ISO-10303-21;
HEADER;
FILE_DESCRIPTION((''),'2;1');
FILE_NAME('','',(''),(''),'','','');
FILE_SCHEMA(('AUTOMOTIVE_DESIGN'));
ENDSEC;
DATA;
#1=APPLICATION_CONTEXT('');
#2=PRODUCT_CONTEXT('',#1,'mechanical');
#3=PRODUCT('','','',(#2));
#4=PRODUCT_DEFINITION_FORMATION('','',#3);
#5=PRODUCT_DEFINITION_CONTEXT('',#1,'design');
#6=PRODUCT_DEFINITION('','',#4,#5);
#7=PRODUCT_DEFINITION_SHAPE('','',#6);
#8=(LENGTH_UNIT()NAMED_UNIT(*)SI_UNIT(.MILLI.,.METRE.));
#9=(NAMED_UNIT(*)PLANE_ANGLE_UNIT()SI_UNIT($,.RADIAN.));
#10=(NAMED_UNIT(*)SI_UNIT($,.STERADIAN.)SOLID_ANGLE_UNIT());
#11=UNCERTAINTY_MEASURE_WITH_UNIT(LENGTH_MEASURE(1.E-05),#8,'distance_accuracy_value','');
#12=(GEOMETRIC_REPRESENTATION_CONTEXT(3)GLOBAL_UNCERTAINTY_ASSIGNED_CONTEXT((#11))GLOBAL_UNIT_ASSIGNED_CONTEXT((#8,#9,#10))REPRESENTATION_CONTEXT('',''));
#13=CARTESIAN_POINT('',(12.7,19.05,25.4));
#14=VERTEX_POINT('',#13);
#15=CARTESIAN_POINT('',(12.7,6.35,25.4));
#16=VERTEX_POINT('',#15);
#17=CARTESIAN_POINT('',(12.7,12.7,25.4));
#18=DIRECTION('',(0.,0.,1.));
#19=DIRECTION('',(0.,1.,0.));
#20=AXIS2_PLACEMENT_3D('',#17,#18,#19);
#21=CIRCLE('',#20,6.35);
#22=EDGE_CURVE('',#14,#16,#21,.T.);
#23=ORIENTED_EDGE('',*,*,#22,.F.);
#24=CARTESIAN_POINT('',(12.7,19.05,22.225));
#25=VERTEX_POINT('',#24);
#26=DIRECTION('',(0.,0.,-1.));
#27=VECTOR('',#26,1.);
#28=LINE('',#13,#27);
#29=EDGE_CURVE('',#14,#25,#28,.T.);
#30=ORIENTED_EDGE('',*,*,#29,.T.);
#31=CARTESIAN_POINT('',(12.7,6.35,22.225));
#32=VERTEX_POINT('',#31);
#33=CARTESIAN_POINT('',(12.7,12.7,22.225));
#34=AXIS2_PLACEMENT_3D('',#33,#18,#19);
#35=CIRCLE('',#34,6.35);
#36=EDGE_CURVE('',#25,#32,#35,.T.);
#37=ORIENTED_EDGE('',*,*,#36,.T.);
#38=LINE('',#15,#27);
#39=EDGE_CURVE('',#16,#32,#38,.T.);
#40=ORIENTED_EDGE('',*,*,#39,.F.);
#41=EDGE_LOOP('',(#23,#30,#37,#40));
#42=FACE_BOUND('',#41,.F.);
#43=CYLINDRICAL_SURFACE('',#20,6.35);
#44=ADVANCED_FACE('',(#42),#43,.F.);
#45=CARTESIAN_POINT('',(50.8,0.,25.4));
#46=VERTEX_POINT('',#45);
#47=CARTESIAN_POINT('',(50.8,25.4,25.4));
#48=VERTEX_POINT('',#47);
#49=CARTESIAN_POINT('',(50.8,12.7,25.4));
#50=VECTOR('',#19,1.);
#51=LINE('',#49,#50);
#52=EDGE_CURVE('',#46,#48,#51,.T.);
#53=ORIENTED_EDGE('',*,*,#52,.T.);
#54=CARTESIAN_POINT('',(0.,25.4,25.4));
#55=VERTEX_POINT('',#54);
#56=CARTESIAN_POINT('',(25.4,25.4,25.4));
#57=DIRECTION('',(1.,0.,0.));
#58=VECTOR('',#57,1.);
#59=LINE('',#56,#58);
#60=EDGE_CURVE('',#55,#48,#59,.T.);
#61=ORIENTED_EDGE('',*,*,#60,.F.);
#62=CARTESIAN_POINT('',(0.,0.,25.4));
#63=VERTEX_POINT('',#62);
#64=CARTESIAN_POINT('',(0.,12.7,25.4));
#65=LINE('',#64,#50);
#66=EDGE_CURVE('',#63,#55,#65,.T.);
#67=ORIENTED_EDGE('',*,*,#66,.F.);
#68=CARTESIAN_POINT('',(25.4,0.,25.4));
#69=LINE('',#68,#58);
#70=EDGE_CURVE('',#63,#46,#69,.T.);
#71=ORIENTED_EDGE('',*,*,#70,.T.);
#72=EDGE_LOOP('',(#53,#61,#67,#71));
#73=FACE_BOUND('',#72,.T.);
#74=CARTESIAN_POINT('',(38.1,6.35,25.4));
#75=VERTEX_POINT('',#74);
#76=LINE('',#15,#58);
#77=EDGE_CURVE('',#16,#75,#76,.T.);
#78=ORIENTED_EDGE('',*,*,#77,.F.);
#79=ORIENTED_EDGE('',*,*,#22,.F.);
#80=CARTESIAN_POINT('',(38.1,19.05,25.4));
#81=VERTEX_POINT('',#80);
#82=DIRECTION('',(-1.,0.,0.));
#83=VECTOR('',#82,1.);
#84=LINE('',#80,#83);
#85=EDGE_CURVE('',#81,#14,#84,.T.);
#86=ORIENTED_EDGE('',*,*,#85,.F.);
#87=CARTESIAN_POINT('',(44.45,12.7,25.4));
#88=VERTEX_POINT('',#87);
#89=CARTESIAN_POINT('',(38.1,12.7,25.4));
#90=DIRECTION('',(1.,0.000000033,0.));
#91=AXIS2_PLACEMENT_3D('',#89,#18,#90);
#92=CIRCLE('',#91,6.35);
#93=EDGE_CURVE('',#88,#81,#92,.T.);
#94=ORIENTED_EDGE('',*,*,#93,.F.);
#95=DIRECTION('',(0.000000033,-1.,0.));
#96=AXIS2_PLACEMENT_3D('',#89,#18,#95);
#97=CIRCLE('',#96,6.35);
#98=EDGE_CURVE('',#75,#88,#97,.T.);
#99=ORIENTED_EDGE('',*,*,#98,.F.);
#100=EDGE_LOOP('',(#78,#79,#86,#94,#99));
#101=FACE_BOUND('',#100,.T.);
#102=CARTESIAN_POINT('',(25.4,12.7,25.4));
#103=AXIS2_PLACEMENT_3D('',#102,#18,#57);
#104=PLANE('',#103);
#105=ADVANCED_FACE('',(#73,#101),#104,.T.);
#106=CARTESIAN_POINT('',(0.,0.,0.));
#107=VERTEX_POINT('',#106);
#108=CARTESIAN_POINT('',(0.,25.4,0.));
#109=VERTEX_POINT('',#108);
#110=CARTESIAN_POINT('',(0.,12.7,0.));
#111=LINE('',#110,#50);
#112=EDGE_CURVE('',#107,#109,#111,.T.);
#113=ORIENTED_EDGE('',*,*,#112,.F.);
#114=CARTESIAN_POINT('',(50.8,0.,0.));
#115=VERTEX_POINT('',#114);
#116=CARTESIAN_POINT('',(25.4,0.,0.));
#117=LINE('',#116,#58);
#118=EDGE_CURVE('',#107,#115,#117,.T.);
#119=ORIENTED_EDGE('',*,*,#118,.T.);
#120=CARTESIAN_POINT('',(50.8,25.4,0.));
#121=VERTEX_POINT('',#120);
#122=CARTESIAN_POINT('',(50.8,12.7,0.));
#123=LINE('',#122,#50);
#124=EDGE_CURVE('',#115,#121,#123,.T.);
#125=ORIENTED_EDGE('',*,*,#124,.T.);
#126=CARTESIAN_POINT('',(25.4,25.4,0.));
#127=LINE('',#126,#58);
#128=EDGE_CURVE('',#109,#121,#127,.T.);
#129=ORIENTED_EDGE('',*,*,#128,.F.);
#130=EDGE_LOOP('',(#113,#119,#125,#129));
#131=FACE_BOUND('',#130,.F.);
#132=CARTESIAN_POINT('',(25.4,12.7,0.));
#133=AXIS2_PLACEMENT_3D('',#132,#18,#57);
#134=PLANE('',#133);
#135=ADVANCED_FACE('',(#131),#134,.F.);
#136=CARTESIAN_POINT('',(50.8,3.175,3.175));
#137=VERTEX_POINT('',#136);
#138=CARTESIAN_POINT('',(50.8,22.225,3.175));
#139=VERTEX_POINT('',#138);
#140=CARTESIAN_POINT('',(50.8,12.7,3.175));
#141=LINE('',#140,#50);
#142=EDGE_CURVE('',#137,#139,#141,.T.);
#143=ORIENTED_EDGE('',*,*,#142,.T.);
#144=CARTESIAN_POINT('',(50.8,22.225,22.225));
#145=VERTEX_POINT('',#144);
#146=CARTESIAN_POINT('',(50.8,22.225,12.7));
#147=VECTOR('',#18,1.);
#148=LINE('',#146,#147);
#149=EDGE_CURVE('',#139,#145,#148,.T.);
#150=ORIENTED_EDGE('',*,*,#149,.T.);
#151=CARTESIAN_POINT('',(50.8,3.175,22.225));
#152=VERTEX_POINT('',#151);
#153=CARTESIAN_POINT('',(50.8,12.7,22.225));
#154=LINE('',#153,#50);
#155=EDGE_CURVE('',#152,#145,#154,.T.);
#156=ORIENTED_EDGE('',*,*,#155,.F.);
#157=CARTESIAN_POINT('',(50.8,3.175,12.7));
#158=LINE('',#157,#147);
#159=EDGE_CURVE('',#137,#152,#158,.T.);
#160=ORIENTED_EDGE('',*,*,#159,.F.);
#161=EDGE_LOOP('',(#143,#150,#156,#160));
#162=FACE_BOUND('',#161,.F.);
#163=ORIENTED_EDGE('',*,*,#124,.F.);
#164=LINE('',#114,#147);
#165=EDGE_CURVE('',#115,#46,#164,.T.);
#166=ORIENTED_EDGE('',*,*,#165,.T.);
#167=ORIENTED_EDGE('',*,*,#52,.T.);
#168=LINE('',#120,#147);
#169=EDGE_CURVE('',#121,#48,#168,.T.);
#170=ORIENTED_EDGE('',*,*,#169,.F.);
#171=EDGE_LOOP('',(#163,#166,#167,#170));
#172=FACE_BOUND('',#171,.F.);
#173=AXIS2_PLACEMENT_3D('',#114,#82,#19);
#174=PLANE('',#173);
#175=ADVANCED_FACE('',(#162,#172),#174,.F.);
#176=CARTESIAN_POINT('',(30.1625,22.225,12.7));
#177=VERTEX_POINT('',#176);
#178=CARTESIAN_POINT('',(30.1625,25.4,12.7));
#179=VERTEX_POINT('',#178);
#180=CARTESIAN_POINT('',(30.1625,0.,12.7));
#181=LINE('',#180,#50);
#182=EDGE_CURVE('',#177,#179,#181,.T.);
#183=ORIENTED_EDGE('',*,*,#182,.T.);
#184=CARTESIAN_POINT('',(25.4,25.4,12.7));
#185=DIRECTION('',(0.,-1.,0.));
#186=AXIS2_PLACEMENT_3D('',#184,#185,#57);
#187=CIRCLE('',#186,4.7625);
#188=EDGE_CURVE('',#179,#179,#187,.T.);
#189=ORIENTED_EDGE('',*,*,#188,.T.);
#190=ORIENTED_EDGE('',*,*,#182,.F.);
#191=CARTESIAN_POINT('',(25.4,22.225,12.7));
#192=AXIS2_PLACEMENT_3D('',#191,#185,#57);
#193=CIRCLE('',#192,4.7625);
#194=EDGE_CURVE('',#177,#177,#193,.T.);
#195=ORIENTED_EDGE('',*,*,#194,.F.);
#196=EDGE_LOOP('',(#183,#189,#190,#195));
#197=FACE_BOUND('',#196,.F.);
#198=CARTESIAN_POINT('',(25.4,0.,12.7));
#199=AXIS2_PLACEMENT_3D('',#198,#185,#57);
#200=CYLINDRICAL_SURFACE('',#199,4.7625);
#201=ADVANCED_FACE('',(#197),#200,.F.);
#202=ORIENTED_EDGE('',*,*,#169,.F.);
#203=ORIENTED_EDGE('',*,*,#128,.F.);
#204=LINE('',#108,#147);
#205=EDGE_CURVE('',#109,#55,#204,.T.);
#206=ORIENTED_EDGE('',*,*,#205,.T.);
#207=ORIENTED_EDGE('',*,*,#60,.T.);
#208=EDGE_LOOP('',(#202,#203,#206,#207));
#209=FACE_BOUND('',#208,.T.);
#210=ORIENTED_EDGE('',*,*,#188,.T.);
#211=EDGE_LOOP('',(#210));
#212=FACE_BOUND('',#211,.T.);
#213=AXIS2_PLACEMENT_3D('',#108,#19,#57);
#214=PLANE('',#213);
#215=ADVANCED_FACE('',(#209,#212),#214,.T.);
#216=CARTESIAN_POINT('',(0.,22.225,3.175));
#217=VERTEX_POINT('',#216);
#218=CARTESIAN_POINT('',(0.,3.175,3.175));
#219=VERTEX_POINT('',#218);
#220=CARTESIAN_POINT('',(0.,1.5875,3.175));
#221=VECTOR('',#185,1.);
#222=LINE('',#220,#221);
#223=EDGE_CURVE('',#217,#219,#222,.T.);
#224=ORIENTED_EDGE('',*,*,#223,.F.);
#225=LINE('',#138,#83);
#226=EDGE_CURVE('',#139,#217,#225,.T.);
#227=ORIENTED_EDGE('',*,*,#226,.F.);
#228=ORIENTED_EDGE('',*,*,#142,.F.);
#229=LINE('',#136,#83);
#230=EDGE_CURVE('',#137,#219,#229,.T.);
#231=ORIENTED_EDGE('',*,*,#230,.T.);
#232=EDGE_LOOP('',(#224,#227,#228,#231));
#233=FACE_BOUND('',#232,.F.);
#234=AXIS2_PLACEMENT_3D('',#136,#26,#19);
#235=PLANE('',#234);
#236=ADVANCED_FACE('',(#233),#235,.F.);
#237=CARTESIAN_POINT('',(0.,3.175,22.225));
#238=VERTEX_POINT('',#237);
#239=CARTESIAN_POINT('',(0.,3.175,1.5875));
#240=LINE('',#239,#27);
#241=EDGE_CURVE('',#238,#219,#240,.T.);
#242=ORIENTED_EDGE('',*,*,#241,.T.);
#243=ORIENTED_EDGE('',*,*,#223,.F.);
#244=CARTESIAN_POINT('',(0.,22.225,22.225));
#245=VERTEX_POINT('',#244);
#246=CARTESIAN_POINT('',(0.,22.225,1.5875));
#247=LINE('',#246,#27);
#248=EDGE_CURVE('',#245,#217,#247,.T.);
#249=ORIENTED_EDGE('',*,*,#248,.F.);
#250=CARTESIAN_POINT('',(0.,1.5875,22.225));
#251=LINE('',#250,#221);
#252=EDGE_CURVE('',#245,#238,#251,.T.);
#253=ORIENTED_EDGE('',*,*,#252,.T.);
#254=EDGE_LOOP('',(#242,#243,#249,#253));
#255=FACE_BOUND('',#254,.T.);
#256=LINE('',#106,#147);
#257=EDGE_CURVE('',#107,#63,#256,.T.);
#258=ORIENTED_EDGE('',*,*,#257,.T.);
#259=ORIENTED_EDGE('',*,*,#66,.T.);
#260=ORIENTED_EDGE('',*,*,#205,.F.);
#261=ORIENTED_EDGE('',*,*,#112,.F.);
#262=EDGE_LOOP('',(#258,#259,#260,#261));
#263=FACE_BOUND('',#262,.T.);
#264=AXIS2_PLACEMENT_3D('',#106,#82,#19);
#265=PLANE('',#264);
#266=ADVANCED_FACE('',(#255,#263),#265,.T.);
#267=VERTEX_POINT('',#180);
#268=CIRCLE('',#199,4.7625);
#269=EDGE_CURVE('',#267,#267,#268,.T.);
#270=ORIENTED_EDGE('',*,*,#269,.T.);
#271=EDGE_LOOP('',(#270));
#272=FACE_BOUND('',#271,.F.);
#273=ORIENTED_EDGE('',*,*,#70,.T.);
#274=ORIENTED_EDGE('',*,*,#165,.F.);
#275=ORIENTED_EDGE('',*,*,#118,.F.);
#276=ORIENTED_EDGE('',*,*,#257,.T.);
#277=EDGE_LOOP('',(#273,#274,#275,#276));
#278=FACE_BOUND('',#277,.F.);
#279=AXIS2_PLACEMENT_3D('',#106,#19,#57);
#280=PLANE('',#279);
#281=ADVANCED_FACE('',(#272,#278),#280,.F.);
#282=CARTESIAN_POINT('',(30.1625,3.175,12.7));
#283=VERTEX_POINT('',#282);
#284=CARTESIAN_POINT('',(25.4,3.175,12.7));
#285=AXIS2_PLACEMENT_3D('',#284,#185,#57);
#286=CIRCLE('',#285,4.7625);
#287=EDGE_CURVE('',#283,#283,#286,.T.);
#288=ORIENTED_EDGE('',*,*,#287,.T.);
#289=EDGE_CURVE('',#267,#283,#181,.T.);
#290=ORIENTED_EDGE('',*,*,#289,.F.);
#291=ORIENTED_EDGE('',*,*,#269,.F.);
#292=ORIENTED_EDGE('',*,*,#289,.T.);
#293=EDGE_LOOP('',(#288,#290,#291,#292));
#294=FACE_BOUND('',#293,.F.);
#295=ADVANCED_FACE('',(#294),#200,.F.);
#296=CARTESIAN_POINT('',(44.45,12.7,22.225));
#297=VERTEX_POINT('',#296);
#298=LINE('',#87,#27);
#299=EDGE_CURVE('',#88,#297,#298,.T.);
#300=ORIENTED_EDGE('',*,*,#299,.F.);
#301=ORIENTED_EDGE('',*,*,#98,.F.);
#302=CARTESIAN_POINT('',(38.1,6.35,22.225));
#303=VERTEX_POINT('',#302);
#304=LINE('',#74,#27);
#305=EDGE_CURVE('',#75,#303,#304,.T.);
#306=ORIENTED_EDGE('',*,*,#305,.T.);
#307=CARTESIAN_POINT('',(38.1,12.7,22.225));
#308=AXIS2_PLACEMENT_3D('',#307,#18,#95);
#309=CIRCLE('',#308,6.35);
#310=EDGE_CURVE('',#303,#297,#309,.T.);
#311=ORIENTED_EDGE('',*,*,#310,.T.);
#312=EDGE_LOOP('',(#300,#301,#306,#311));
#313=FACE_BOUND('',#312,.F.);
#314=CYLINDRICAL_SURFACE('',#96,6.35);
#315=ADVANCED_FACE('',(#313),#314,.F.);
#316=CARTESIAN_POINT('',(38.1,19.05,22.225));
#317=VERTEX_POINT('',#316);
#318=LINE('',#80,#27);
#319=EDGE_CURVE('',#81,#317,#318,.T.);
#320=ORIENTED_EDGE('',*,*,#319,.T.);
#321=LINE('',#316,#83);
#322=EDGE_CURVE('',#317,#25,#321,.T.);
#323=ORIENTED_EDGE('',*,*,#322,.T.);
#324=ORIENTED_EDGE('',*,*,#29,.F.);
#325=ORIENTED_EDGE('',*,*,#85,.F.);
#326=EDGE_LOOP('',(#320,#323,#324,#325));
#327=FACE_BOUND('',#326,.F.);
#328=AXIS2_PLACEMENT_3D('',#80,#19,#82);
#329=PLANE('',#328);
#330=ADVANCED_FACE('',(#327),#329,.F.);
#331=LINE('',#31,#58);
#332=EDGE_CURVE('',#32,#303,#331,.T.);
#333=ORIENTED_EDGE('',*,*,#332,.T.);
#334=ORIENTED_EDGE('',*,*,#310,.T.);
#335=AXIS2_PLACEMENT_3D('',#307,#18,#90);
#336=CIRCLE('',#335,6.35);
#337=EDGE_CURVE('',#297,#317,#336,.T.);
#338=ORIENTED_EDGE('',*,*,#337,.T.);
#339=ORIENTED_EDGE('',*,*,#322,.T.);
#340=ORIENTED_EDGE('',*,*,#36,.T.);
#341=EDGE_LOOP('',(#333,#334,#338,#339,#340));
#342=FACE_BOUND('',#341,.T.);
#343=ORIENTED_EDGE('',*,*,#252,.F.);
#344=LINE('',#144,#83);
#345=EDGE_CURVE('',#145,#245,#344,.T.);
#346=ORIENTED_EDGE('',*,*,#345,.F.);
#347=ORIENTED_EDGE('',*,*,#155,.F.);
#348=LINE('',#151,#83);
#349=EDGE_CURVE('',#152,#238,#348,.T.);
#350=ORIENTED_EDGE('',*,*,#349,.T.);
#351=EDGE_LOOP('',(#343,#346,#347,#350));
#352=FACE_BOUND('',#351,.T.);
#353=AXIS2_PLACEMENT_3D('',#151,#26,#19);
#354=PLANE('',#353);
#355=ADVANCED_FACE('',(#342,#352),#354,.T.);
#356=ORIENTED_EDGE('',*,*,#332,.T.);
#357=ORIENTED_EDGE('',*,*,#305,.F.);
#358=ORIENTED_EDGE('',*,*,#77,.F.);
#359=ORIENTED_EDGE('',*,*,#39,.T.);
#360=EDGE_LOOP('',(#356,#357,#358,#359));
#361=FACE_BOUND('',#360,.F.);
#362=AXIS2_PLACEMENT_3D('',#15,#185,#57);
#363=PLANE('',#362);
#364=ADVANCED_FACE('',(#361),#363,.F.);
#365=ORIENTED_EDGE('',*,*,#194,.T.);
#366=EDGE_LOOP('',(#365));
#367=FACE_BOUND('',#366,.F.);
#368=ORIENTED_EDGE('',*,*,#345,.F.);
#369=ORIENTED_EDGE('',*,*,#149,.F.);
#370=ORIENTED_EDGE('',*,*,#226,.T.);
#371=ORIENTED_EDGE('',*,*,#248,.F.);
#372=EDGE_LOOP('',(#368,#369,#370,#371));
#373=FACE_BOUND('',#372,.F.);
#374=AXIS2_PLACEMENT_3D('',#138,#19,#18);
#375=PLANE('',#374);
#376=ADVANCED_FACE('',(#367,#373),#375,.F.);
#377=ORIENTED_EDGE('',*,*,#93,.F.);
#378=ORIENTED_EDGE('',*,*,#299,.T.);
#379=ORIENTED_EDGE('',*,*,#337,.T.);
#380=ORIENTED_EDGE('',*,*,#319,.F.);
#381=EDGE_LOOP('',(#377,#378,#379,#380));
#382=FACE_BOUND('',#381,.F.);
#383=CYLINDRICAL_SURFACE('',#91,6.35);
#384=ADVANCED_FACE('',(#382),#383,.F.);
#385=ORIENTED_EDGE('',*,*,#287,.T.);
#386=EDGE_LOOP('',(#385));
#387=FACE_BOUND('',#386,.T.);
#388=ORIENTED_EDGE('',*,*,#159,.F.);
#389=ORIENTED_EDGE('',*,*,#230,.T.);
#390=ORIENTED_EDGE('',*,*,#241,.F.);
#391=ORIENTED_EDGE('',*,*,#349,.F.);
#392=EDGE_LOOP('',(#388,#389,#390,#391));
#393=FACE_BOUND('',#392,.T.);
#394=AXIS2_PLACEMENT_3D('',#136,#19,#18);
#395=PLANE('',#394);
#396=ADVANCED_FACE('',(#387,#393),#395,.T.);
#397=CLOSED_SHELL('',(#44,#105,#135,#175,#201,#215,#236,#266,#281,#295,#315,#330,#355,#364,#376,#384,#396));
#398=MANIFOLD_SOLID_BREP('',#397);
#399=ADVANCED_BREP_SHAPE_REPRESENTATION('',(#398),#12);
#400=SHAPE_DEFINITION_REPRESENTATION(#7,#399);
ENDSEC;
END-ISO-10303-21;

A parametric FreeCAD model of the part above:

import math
import FreeCAD as App
import Part
import Sketcher
from FreeCAD import Vector
Q = App.Units.Quantity

doc = App.newDocument("Part")
params = doc.addObject("Spreadsheet::Sheet", "Params")
for row, (alias, value) in enumerate([
    ("sketch1_width", "2 in"),
    ("sketch1_height", "1 in"),
    ("pad1_length", "1 in"),
    ("sketch2_width", "0.75 in"),
    ("sketch3_diameter", "0.375 in"),
    ("sketch4_width", "1 in"),
    ("sketch4_radius", "0.25 in"),
    ("pocket3_length", "0.125 in"),
], start=1):
    params.set(f"A{row}", alias)
    params.set(f"B{row}", "=" + value)
    params.setAlias(f"B{row}", alias)

body = doc.addObject("PartDesign::Body", "Body")

sketch1 = body.newObject("Sketcher::SketchObject", "Sketch")
sketch1.AttachmentSupport = (doc.getObject("XY_Plane"), [""])
sketch1.MapMode = "FlatFace"
sketch1.addGeometry([
    Part.LineSegment(Vector(0, 25.4, 0), Vector(0, 0, 0)),
    Part.LineSegment(Vector(0, 0, 0), Vector(50.8, 0, 0)),
    Part.LineSegment(Vector(50.8, 0, 0), Vector(50.8, 25.4, 0)),
    Part.LineSegment(Vector(50.8, 25.4, 0), Vector(0, 25.4, 0)),
], False)
sketch1.addConstraint([
    Sketcher.Constraint("Coincident", 0, 2, 1, 1),
    Sketcher.Constraint("Coincident", 1, 2, 2, 1),
    Sketcher.Constraint("Coincident", 2, 2, 3, 1),
    Sketcher.Constraint("Coincident", 3, 2, 0, 1),
    Sketcher.Constraint("Vertical", 0),
    Sketcher.Constraint("Horizontal", 1),
    Sketcher.Constraint("Vertical", 2),
    Sketcher.Constraint("Horizontal", 3),
    Sketcher.Constraint("Coincident", 0, 2, -1, 1),
    Sketcher.Constraint("DistanceX", 1, 1, 1, 2, Q("2 in")),
    Sketcher.Constraint("DistanceY", 0, 2, 0, 1, Q("1 in")),
])
sketch1.setExpression("Constraints[9]", "Params.sketch1_width")
sketch1.setExpression("Constraints[10]", "Params.sketch1_height")
pad1 = body.newObject("PartDesign::Pad", "Pad")
pad1.Profile = sketch1
pad1.setExpression("Length", "Params.pad1_length")

sketch2 = body.newObject("Sketcher::SketchObject", "Sketch001")
sketch2.AttachmentSupport = (doc.getObject("YZ_Plane"), [""])
sketch2.MapMode = "FlatFace"
sketch2.AttachmentOffset = App.Placement(Vector(0, 0, 2 * 25.4), App.Rotation())
sketch2.addGeometry([
    Part.LineSegment(Vector(3.175, 22.225, 0), Vector(3.175, 3.175, 0)),
    Part.LineSegment(Vector(3.175, 3.175, 0), Vector(22.225, 3.175, 0)),
    Part.LineSegment(Vector(22.225, 3.175, 0), Vector(22.225, 22.225, 0)),
    Part.LineSegment(Vector(22.225, 22.225, 0), Vector(3.175, 22.225, 0)),
], False)
sketch2.addConstraint([
    Sketcher.Constraint("Coincident", 0, 2, 1, 1),
    Sketcher.Constraint("Coincident", 1, 2, 2, 1),
    Sketcher.Constraint("Coincident", 2, 2, 3, 1),
    Sketcher.Constraint("Coincident", 3, 2, 0, 1),
    Sketcher.Constraint("Vertical", 0),
    Sketcher.Constraint("Horizontal", 1),
    Sketcher.Constraint("Vertical", 2),
    Sketcher.Constraint("Horizontal", 3),
    Sketcher.Constraint("Equal", 3, 0),
    Sketcher.Constraint("DistanceX", 1, 1, 1, 2, Q("0.75 in")),
    Sketcher.Constraint("DistanceX", -1, 1, 0, 2, Q("0.125 in")),
    Sketcher.Constraint("DistanceY", -1, 1, 0, 2, Q("0.125 in")),
])
sketch2.setExpression("Constraints[9]", "Params.sketch2_width")
pocket1 = body.newObject("PartDesign::Pocket", "Pocket")
pocket1.Profile = sketch2
pocket1.Type = "ThroughAll"

sketch3 = body.newObject("Sketcher::SketchObject", "Sketch002")
sketch3.AttachmentSupport = (doc.getObject("XZ_Plane"), [""])
sketch3.MapMode = "FlatFace"
sketch3.addGeometry(Part.Circle(Vector(25.4, 12.7, 0), Vector(0, 0, 1), 4.7625), False)
sketch3.addConstraint([
    Sketcher.Constraint("Diameter", 0, Q("0.375 in")),
    Sketcher.Constraint("DistanceX", -1, 1, 0, 3, Q("1 in")),
    Sketcher.Constraint("DistanceY", -1, 1, 0, 3, Q("0.5 in")),
])
sketch3.setExpression("Constraints[0]", "Params.sketch3_diameter")
pocket2 = body.newObject("PartDesign::Pocket", "Pocket001")
pocket2.Profile = sketch3
pocket2.Type = "ThroughAll"

sketch4 = body.newObject("Sketcher::SketchObject", "Sketch003")
sketch4.AttachmentSupport = (doc.getObject("XY_Plane"), [""])
sketch4.MapMode = "FlatFace"
sketch4.AttachmentOffset = App.Placement(Vector(0, 0, 1 * 25.4), App.Rotation())
sketch4.addGeometry([
    Part.ArcOfCircle(Part.Circle(Vector(12.7, 12.7, 0), Vector(0, 0, 1), 6.35), math.radians(90), math.radians(270)),
    Part.LineSegment(Vector(12.7, 6.35, 0), Vector(38.1, 6.35, 0)),
    Part.ArcOfCircle(Part.Circle(Vector(38.1, 12.7, 0), Vector(0, 0, 1), 6.35), math.radians(-89.999998), math.radians(-0.000002)),
    Part.ArcOfCircle(Part.Circle(Vector(38.1, 12.7, 0), Vector(0, 0, 1), 6.35), math.radians(0.000002), math.radians(89.999998)),
    Part.LineSegment(Vector(38.1, 19.05, 0), Vector(12.7, 19.05, 0)),
], False)
sketch4.addConstraint([
    Sketcher.Constraint("Tangent", 0, 2, 1, 1),
    Sketcher.Constraint("Tangent", 1, 2, 2, 1),
    Sketcher.Constraint("Tangent", 2, 2, 3, 1),
    Sketcher.Constraint("Tangent", 3, 2, 4, 1),
    Sketcher.Constraint("Tangent", 4, 2, 0, 1),
    Sketcher.Constraint("Horizontal", 1),
    Sketcher.Constraint("Horizontal", 4),
    Sketcher.Constraint("Equal", 0, 2),
    Sketcher.Constraint("Horizontal", 3, 3, 2, 2),
    Sketcher.Constraint("DistanceX", 1, 1, 1, 2, Q("1 in")),
    Sketcher.Constraint("Radius", 0, Q("0.25 in")),
    Sketcher.Constraint("DistanceX", -1, 1, 0, 3, Q("0.5 in")),
    Sketcher.Constraint("DistanceY", -1, 1, 0, 3, Q("0.5 in")),
])
sketch4.setExpression("Constraints[9]", "Params.sketch4_width")
sketch4.setExpression("Constraints[10]", "Params.sketch4_radius")
pocket3 = body.newObject("PartDesign::Pocket", "Pocket002")
pocket3.Profile = sketch4
pocket3.setExpression("Length", "Params.pocket3_length")

doc.recompute()
